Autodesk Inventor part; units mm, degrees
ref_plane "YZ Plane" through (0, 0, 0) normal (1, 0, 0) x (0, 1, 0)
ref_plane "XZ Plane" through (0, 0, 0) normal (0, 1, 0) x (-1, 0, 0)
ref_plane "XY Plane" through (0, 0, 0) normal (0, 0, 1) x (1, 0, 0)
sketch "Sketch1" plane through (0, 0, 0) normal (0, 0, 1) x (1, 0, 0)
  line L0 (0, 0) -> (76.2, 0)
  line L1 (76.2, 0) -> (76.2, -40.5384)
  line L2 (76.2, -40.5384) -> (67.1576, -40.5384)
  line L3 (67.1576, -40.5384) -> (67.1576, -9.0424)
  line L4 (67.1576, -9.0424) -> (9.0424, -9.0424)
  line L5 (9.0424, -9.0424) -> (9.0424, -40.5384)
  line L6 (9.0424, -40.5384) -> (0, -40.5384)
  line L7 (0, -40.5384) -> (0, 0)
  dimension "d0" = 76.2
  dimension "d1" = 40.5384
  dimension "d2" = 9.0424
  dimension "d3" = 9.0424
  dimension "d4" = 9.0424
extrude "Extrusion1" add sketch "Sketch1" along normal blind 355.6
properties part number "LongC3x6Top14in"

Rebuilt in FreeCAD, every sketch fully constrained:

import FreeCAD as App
import Part
import Sketcher
from FreeCAD import Vector
Q = App.Units.Quantity

doc = App.newDocument("Part")
body = doc.addObject("PartDesign::Body", "Body")

sketch1 = body.newObject("Sketcher::SketchObject", "Sketch")
sketch1.AttachmentSupport = (doc.getObject("XY_Plane"), [""])
sketch1.MapMode = "FlatFace"
sketch1.addGeometry([
    Part.LineSegment(Vector(76, 0, 0), Vector(0, 0, 0)),
    Part.LineSegment(Vector(0, 0, 0), Vector(0, -41, 0)),
    Part.LineSegment(Vector(0, -41, 0), Vector(9, -41, 0)),
    Part.LineSegment(Vector(9, -41, 0), Vector(9, -9, 0)),
    Part.LineSegment(Vector(9, -9, 0), Vector(67, -9, 0)),
    Part.LineSegment(Vector(67, -9, 0), Vector(67, -41, 0)),
    Part.LineSegment(Vector(67, -41, 0), Vector(76, -41, 0)),
    Part.LineSegment(Vector(76, -41, 0), Vector(76, 0, 0)),
], False)
sketch1.addConstraint([
    Sketcher.Constraint("Coincident", 0, 2, 1, 1),
    Sketcher.Constraint("Coincident", 1, 2, 2, 1),
    Sketcher.Constraint("Coincident", 2, 2, 3, 1),
    Sketcher.Constraint("Coincident", 3, 2, 4, 1),
    Sketcher.Constraint("Coincident", 4, 2, 5, 1),
    Sketcher.Constraint("Coincident", 5, 2, 6, 1),
    Sketcher.Constraint("Coincident", 6, 2, 7, 1),
    Sketcher.Constraint("Coincident", 7, 2, 0, 1),
    Sketcher.Constraint("Horizontal", 0),
    Sketcher.Constraint("Vertical", 1),
    Sketcher.Constraint("Horizontal", 2),
    Sketcher.Constraint("Vertical", 3),
    Sketcher.Constraint("Horizontal", 4),
    Sketcher.Constraint("Vertical", 5),
    Sketcher.Constraint("Horizontal", 6),
    Sketcher.Constraint("Vertical", 7),
    Sketcher.Constraint("Coincident", 0, 2, -1, 1),
    Sketcher.Constraint("Horizontal", 2, 2, 5, 2),
    Sketcher.Constraint("Equal", 2, 6),
    Sketcher.Constraint("DistanceX", 0, 2, 0, 1, Q("3 in")),
    Sketcher.Constraint("DistanceX", 2, 1, 2, 2, Q("0.356 in")),
    Sketcher.Constraint("DistanceY", 1, 2, 1, 1, Q("1.596 in")),
    Sketcher.Constraint("DistanceY", 3, 2, -1, 1, Q("0.356 in")),
])
pad1 = body.newObject("PartDesign::Pad", "Pad")
pad1.Profile = sketch1
pad1.Length = Q("14 in")

doc.recompute()
